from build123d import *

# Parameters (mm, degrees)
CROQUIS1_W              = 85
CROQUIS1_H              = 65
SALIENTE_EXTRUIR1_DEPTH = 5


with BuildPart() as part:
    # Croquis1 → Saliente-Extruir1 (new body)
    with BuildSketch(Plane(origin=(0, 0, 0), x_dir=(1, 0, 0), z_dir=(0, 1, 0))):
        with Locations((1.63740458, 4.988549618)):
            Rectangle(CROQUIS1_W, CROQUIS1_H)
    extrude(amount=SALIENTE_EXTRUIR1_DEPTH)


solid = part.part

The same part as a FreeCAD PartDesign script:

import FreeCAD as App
import Part
import Sketcher
from FreeCAD import Vector
Q = App.Units.Quantity


def add_polygon(sketch, points):
    """Adds a closed chain of lines whose ends are joined by coincident constraints."""
    first, n = sketch.GeometryCount, len(points)
    for a, b in zip(points, points[1:] + points[:1]):
        sketch.addGeometry(Part.LineSegment(App.Vector(*a, 0), App.Vector(*b, 0)), False)
    for i in range(n):
        sketch.addConstraint(Sketcher.Constraint("Coincident", first + i, 2, first + (i + 1) % n, 1))

doc = App.newDocument("Part")
body = doc.addObject("PartDesign::Body", "Body")

sketch1 = doc.addObject("Sketcher::SketchObject", "Sketch")
body.addObject(sketch1)
sketch1.AttachmentSupport = (doc.XZ_Plane, [""])
sketch1.MapMode = "FlatFace"
add_polygon(sketch1, [(-41, -37), (-41, 28), (44, 28), (44, -37)])
sketch1.addConstraint([
    Sketcher.Constraint("Vertical", 0),
    Sketcher.Constraint("Horizontal", 1),
    Sketcher.Constraint("Vertical", 2),
    Sketcher.Constraint("Horizontal", 3),
    Sketcher.Constraint("DistanceX", 1, 1, 1, 2, Q("85 mm")),
    Sketcher.Constraint("DistanceY", 0, 1, 0, 2, Q("65 mm")),
    Sketcher.Constraint("DistanceY", -1, 1, 0, 2, Q("27.51145 mm")),
    Sketcher.Constraint("DistanceX", 0, 2, -1, 1, Q("40.862595 mm")),
])
pad1 = doc.addObject("PartDesign::Pad", "Pad")
body.addObject(pad1)
pad1.Profile = sketch1
pad1.Length = 5
pad1.Reversed = True

doc.recompute()
